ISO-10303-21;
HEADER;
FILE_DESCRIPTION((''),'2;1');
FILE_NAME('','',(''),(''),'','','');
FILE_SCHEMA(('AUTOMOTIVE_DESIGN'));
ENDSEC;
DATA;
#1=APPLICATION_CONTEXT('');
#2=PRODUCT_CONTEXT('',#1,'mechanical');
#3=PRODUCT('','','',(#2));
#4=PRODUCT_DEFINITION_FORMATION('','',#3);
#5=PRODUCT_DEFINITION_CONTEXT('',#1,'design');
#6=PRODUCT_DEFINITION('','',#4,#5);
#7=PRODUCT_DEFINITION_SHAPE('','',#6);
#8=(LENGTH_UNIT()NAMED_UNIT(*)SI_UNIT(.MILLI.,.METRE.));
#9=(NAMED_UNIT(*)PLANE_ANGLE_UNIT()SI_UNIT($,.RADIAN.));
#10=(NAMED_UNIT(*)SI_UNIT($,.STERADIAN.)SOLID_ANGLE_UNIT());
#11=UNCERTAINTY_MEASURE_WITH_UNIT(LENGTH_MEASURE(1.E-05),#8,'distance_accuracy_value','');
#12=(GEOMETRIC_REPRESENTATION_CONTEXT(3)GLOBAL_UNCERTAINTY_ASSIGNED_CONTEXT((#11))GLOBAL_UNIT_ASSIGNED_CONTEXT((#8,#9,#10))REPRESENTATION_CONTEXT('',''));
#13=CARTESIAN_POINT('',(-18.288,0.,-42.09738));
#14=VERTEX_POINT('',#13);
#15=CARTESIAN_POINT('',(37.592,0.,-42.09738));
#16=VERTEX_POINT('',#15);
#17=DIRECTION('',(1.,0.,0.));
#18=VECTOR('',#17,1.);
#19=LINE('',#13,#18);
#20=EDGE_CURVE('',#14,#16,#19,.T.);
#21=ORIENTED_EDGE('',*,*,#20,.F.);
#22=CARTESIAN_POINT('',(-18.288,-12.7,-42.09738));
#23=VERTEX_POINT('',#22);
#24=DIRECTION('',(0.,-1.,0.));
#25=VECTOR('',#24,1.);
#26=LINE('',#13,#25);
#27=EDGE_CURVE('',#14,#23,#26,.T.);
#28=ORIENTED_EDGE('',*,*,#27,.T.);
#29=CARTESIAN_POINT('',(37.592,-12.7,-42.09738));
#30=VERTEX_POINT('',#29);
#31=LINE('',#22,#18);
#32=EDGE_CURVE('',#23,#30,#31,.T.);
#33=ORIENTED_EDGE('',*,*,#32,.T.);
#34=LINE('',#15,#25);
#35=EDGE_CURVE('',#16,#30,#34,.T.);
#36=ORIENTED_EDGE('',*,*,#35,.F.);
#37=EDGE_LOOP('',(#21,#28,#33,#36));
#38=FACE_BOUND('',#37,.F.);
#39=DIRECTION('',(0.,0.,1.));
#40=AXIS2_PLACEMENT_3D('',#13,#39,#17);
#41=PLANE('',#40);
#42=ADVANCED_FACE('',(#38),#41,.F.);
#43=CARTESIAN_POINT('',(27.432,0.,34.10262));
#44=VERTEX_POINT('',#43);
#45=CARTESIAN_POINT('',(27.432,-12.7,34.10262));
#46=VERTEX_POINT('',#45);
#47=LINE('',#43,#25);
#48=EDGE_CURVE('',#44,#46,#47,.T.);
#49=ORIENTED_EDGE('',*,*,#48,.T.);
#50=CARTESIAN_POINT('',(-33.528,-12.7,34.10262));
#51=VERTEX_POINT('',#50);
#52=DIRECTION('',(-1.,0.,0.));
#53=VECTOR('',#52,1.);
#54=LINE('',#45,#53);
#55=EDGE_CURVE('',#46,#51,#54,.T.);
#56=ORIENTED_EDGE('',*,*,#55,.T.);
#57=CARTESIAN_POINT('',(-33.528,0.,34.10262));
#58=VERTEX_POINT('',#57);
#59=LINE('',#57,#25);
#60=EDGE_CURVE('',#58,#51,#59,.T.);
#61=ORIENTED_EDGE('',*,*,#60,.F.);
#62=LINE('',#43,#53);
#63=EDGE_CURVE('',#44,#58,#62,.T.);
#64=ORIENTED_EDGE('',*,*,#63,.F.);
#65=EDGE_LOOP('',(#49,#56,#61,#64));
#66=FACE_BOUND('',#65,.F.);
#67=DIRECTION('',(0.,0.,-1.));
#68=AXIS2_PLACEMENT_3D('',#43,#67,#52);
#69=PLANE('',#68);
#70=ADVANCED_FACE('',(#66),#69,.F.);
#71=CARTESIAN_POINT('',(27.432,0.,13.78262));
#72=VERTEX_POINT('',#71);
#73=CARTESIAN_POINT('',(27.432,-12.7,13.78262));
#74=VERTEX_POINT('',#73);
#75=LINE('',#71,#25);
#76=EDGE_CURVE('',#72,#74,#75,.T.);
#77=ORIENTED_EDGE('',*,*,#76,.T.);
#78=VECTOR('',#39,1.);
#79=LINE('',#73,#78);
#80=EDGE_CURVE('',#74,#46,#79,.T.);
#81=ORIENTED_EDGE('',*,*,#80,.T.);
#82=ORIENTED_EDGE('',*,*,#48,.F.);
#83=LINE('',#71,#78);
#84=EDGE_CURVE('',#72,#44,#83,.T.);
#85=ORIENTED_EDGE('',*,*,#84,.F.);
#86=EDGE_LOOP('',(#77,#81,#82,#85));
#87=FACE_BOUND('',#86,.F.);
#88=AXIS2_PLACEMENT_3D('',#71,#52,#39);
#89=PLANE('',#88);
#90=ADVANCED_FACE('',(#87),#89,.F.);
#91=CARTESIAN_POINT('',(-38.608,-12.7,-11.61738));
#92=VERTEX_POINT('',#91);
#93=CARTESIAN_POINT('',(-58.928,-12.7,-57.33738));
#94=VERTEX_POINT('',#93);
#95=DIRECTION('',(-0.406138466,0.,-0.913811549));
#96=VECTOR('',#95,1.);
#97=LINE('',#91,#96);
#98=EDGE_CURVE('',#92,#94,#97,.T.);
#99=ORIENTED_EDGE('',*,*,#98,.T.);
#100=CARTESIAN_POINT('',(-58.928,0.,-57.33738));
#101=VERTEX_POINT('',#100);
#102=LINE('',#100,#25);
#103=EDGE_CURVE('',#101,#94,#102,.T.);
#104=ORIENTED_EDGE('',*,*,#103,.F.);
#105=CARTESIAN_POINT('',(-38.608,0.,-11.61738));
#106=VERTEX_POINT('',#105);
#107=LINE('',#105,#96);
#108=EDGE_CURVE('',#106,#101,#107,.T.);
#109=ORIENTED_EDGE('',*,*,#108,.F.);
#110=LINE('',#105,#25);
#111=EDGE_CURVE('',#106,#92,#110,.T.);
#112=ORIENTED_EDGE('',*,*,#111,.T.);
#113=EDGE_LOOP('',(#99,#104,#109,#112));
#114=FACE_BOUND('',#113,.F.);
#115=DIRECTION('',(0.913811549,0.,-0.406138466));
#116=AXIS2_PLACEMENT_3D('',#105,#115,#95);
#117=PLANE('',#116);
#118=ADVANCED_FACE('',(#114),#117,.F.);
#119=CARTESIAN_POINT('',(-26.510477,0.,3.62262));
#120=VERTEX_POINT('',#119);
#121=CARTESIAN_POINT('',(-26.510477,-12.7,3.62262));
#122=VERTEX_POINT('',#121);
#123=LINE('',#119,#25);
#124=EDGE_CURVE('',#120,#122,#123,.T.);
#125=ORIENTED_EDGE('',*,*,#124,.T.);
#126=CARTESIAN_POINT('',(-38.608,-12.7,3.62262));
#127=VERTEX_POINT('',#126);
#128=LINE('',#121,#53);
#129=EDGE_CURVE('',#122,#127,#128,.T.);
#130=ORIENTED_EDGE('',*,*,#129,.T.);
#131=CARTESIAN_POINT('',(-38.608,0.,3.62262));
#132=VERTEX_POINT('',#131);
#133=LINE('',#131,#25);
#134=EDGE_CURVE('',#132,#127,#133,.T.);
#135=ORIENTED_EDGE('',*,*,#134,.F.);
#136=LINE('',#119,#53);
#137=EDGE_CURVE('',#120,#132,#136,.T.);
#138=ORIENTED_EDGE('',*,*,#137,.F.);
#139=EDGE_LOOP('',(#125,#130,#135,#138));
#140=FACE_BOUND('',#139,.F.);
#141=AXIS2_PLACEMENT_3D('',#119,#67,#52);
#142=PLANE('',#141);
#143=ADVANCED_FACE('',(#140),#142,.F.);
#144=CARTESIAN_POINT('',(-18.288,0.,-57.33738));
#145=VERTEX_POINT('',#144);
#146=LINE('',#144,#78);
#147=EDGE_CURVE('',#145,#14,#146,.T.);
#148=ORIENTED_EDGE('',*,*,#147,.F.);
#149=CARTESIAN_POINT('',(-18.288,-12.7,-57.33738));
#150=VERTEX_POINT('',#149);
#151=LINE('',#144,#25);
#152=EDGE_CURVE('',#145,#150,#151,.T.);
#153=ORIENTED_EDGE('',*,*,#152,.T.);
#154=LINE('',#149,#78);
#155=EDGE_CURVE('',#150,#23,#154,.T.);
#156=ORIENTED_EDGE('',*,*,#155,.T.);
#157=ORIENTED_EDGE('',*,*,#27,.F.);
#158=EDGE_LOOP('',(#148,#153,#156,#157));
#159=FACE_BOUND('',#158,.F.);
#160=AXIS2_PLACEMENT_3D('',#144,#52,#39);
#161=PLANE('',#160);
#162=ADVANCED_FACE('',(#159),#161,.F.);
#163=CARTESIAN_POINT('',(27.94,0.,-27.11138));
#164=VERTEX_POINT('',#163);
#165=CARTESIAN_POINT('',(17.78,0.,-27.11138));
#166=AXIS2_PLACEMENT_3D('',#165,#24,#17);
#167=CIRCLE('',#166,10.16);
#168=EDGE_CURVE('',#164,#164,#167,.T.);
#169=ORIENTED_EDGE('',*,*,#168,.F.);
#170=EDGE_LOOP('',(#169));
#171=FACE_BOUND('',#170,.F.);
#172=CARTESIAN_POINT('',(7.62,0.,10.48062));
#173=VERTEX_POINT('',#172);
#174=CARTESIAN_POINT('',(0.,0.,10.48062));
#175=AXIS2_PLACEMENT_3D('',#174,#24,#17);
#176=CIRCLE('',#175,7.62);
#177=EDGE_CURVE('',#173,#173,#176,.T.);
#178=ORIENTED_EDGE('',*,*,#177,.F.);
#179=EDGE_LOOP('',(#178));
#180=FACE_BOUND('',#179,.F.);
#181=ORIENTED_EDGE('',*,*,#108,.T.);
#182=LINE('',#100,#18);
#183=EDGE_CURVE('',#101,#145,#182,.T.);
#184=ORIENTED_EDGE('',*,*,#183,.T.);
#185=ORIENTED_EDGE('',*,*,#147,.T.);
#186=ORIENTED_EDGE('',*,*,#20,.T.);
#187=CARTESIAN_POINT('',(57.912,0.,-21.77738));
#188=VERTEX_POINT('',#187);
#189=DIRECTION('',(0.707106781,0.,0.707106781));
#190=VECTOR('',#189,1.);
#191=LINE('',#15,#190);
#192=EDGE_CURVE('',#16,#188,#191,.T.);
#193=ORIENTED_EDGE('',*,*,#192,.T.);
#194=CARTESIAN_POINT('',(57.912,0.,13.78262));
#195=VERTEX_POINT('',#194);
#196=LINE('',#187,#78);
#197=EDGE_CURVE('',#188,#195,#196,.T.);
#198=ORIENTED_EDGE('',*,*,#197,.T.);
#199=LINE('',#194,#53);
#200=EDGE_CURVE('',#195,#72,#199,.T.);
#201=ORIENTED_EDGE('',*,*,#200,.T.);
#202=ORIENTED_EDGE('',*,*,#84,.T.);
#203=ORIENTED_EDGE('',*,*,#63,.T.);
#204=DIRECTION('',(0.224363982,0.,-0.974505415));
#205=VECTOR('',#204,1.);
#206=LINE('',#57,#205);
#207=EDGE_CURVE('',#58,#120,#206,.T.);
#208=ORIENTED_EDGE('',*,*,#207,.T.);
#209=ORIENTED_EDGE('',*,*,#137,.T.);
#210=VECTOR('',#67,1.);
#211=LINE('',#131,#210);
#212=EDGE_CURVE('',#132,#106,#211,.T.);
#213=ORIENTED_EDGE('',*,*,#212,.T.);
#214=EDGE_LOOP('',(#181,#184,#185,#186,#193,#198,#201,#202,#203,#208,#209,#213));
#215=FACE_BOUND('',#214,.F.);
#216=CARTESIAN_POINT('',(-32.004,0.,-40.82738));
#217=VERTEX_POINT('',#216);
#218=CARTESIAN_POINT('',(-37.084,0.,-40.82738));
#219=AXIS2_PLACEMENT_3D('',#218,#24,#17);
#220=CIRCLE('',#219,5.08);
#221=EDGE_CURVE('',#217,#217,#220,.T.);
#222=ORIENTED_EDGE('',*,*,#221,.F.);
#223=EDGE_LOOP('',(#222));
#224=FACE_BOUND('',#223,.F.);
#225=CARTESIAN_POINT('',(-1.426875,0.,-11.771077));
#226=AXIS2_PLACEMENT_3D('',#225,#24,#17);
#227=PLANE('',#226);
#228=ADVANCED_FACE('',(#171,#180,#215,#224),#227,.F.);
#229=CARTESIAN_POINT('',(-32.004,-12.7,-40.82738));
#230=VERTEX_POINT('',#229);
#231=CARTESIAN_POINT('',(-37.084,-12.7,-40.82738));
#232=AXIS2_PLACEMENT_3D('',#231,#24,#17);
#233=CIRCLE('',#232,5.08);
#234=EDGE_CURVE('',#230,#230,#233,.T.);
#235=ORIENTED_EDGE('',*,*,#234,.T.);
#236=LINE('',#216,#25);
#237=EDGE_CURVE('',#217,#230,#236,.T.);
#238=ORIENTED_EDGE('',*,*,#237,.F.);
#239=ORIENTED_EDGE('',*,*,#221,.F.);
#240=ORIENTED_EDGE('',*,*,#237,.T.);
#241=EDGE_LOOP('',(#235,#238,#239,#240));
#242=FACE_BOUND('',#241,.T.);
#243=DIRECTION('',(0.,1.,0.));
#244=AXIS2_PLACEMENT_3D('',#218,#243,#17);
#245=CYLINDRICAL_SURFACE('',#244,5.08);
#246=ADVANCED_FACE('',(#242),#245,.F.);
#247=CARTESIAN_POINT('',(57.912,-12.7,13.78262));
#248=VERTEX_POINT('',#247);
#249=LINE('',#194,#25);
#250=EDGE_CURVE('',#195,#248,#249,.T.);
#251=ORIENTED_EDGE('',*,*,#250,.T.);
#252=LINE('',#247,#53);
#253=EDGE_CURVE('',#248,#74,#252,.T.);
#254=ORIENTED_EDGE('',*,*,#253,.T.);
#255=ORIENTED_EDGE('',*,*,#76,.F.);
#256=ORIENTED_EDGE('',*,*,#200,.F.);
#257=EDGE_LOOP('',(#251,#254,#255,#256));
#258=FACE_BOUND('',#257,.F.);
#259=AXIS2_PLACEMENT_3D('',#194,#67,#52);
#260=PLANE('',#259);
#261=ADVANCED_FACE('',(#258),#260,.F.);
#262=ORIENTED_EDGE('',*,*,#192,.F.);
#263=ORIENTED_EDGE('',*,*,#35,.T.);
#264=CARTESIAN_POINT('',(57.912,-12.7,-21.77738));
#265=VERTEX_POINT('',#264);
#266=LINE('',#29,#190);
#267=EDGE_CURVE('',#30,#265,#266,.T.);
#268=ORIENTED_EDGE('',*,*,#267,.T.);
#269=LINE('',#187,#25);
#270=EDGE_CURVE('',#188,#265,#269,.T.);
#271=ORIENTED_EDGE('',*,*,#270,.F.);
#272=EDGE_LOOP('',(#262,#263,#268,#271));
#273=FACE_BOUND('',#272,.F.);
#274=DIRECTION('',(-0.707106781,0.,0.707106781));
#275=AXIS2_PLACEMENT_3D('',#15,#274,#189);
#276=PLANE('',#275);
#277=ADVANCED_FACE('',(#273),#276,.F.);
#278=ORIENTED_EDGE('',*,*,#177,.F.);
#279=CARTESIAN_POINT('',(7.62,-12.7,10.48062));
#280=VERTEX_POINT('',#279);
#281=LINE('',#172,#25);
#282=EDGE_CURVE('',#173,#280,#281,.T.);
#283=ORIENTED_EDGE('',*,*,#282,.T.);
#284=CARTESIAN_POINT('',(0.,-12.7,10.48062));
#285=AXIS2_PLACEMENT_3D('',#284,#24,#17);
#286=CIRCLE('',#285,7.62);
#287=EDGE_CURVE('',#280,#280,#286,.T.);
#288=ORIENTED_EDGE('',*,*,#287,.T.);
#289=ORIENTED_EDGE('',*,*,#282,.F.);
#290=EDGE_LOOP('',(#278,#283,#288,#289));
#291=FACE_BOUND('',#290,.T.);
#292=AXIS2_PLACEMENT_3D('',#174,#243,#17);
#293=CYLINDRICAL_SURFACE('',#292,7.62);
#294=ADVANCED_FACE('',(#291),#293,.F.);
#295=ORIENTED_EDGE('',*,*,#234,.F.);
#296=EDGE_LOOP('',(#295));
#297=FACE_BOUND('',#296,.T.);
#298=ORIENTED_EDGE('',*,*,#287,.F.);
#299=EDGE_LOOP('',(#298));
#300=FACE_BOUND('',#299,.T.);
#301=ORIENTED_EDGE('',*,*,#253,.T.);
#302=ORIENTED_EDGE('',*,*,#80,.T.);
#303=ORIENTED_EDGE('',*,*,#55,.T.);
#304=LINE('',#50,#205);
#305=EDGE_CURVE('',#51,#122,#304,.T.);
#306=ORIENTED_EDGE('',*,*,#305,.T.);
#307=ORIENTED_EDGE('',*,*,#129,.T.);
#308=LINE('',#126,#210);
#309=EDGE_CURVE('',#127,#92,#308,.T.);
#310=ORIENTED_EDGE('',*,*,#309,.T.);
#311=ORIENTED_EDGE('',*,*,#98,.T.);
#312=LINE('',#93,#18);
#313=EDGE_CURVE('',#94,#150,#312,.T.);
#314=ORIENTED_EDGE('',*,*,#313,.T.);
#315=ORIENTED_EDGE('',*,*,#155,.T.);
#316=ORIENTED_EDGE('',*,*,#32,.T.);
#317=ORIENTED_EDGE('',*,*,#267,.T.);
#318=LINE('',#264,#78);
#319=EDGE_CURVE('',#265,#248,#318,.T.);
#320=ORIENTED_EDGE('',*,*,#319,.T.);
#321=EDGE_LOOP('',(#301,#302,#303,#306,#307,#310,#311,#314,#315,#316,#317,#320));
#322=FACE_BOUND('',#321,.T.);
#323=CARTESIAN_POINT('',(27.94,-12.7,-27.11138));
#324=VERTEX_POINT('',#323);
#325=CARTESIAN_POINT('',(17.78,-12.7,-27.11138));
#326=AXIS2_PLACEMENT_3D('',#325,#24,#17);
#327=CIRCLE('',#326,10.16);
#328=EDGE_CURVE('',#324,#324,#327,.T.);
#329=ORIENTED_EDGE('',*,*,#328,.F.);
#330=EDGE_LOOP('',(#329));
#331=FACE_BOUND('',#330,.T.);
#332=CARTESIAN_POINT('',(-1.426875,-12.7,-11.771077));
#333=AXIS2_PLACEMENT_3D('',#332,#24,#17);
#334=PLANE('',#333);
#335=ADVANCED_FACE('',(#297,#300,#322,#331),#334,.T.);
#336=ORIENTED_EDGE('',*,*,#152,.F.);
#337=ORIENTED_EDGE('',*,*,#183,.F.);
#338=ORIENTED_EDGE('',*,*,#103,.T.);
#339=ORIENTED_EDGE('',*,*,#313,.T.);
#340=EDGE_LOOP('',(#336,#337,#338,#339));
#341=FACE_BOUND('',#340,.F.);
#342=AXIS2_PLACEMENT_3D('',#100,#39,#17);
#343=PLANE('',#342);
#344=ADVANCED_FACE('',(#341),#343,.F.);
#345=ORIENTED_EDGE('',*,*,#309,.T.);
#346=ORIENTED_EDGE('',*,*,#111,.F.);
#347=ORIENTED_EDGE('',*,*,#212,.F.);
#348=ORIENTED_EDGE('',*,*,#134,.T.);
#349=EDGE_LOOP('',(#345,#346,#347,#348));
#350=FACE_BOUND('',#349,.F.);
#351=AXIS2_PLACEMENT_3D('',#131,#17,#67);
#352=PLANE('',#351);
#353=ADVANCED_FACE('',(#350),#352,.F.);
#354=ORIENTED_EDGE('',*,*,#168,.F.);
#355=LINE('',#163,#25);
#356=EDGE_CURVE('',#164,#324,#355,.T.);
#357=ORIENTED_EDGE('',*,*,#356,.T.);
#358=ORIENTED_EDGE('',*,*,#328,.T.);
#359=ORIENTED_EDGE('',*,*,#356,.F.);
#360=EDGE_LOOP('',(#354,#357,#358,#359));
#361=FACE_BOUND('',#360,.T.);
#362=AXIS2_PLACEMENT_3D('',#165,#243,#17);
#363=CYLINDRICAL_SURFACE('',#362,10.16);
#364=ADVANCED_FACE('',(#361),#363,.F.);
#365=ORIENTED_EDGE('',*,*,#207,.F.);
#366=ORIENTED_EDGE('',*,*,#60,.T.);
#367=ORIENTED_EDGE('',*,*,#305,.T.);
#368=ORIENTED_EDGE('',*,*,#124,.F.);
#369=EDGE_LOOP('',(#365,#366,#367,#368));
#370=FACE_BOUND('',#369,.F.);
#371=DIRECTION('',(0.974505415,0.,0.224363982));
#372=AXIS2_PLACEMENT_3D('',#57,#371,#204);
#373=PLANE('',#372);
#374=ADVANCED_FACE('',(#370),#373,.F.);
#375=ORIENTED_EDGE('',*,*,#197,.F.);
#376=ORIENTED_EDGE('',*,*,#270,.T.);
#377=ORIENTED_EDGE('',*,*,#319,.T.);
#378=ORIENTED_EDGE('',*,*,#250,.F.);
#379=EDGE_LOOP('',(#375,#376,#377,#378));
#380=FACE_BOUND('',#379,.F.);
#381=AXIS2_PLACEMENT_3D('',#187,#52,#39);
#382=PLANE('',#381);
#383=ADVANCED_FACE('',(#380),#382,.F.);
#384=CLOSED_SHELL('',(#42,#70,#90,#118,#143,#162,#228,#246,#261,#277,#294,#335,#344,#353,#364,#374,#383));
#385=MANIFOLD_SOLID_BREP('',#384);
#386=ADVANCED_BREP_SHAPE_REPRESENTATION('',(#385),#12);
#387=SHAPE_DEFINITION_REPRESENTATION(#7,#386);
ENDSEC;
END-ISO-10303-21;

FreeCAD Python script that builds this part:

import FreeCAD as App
import Part
import Sketcher
Q = App.Units.Quantity

doc = App.newDocument("Part")
params = doc.addObject("Spreadsheet::Sheet", "Params")
for row, (alias, value) in enumerate([
    ("sketch1_diameter", "0.4 in"),
    ("sketch1_diameter2", "0.8 in"),
    ("sketch1_diameter3", "0.6 in"),
    ("sketch1_width", "2.4 in"),
    ("sketch1_width2", "1.6 in"),
    ("pad1_length", "0.5 in"),
], start=1):
    params.set(f"A{row}", alias)
    params.set(f"B{row}", "=" + value)
    params.setAlias(f"B{row}", alias)

body = doc.addObject("PartDesign::Body", "Body")

sketch1 = body.newObject("Sketcher::SketchObject", "Sketch")
sketch1.AttachmentSupport = (doc.getObject("XZ_Plane"), [""])
sketch1.MapMode = "FlatFace"
sketch1.addGeometry(Part.LineSegment(App.Vector(27.432, 34.10262, 0), App.Vector(-33.528, 34.10262, 0)), False)
sketch1.addGeometry(Part.LineSegment(App.Vector(-33.528, 34.10262, 0), App.Vector(-26.510477, 3.62262, 0)), False)
sketch1.addGeometry(Part.LineSegment(App.Vector(-26.510477, 3.62262, 0), App.Vector(-38.608, 3.62262, 0)), False)
sketch1.addGeometry(Part.LineSegment(App.Vector(-38.608, 3.62262, 0), App.Vector(-38.608, -11.61738, 0)), False)
sketch1.addGeometry(Part.LineSegment(App.Vector(-38.608, -11.61738, 0), App.Vector(-58.928, -57.33738, 0)), False)
sketch1.addGeometry(Part.LineSegment(App.Vector(-58.928, -57.33738, 0), App.Vector(-18.288, -57.33738, 0)), False)
sketch1.addGeometry(Part.LineSegment(App.Vector(-18.288, -57.33738, 0), App.Vector(-18.288, -42.09738, 0)), False)
sketch1.addGeometry(Part.LineSegment(App.Vector(-18.288, -42.09738, 0), App.Vector(37.592, -42.09738, 0)), False)
sketch1.addGeometry(Part.LineSegment(App.Vector(37.592, -42.09738, 0), App.Vector(57.912, -21.77738, 0)), False)
sketch1.addGeometry(Part.LineSegment(App.Vector(57.912, -21.77738, 0), App.Vector(57.912, 13.78262, 0)), False)
sketch1.addGeometry(Part.LineSegment(App.Vector(57.912, 13.78262, 0), App.Vector(27.432, 13.78262, 0)), False)
sketch1.addGeometry(Part.LineSegment(App.Vector(27.432, 13.78262, 0), App.Vector(27.432, 34.10262, 0)), False)
sketch1.addGeometry(Part.Circle(App.Vector(-37.084, -40.82738, 0), App.Vector(0, 0, 1), 5.08), False)
sketch1.addGeometry(Part.Circle(App.Vector(17.78, -27.11138, 0), App.Vector(0, 0, 1), 10.16), False)
sketch1.addGeometry(Part.Circle(App.Vector(0, 10.48062, 0), App.Vector(0, 0, 1), 7.62), False)
sketch1.addConstraint(Sketcher.Constraint("Coincident", 0, 2, 1, 1))
sketch1.addConstraint(Sketcher.Constraint("Coincident", 1, 2, 2, 1))
sketch1.addConstraint(Sketcher.Constraint("Coincident", 2, 2, 3, 1))
sketch1.addConstraint(Sketcher.Constraint("Coincident", 3, 2, 4, 1))
sketch1.addConstraint(Sketcher.Constraint("Coincident", 4, 2, 5, 1))
sketch1.addConstraint(Sketcher.Constraint("Coincident", 5, 2, 6, 1))
sketch1.addConstraint(Sketcher.Constraint("Coincident", 6, 2, 7, 1))
sketch1.addConstraint(Sketcher.Constraint("Coincident", 7, 2, 8, 1))
sketch1.addConstraint(Sketcher.Constraint("Coincident", 8, 2, 9, 1))
sketch1.addConstraint(Sketcher.Constraint("Coincident", 9, 2, 10, 1))
sketch1.addConstraint(Sketcher.Constraint("Coincident", 10, 2, 11, 1))
sketch1.addConstraint(Sketcher.Constraint("Coincident", 11, 2, 0, 1))
sketch1.addConstraint(Sketcher.Constraint("Horizontal", 0))
sketch1.addConstraint(Sketcher.Constraint("Horizontal", 2))
sketch1.addConstraint(Sketcher.Constraint("Vertical", 3))
sketch1.addConstraint(Sketcher.Constraint("Horizontal", 5))
sketch1.addConstraint(Sketcher.Constraint("Vertical", 6))
sketch1.addConstraint(Sketcher.Constraint("Horizontal", 7))
sketch1.addConstraint(Sketcher.Constraint("Vertical", 9))
sketch1.addConstraint(Sketcher.Constraint("Horizontal", 10))
sketch1.addConstraint(Sketcher.Constraint("Vertical", 11))
sketch1.addConstraint(Sketcher.Constraint("PointOnObject", 14, 3, -2))
sketch1.addConstraint(Sketcher.Constraint("Equal", 3, 6))
sketch1.addConstraint(Sketcher.Constraint("Diameter", 12, Q("0.4 in")))
sketch1.addConstraint(Sketcher.Constraint("Diameter", 13, Q("0.8 in")))
sketch1.addConstraint(Sketcher.Constraint("Diameter", 14, Q("0.6 in")))
sketch1.addConstraint(Sketcher.Constraint("DistanceX", 0, 2, 0, 1, Q("2.4 in")))
sketch1.addConstraint(Sketcher.Constraint("DistanceX", 5, 1, 5, 2, Q("1.6 in")))
sketch1.addConstraint(Sketcher.Constraint("DistanceX", 7, 1, 7, 2, Q("2.2 in")))
sketch1.addConstraint(Sketcher.Constraint("DistanceX", 10, 2, 10, 1, Q("1.2 in")))
sketch1.addConstraint(Sketcher.Constraint("DistanceY", 3, 2, 3, 1, Q("0.6 in")))
sketch1.addConstraint(Sketcher.Constraint("DistanceY", 9, 1, 9, 2, Q("1.4 in")))
sketch1.addConstraint(Sketcher.Constraint("DistanceY", 11, 1, 11, 2, Q("0.8 in")))
sketch1.addConstraint(Sketcher.Constraint("Angle", 8, Q("45 deg")))
sketch1.addConstraint(Sketcher.Constraint("DistanceX", 6, 2, 8, 2, Q("3 in")))
sketch1.addConstraint(Sketcher.Constraint("DistanceX", -1, 1, 13, 3, Q("0.7 in")))
sketch1.addConstraint(Sketcher.Constraint("DistanceY", 1, 2, 0, 2, Q("1.2 in")))
sketch1.addConstraint(Sketcher.Constraint("DistanceX", 2, 2, 0, 2, Q("0.2 in")))
sketch1.addConstraint(Sketcher.Constraint("DistanceX", 12, 3, -1, 1, Q("1.46 in")))
sketch1.addConstraint(Sketcher.Constraint("DistanceX", 0, 2, -1, 1, Q("1.32 in")))
sketch1.addConstraint(Sketcher.Constraint("DistanceY", 12, 3, 13, 3, Q("0.54 in")))
sketch1.addConstraint(Sketcher.Constraint("DistanceY", 13, 3, 14, 3, Q("1.48 in")))
sketch1.addConstraint(Sketcher.Constraint("DistanceY", 14, 3, 0, 2, Q("0.93 in")))
sketch1.addConstraint(Sketcher.Constraint("DistanceX", 2, 2, 2, 1, 12.097523))
sketch1.addConstraint(Sketcher.Constraint("DistanceY", 12, 3, -1, 1, 40.82738))
sketch1.setExpression("Constraints[23]", "Params.sketch1_diameter")
sketch1.setExpression("Constraints[24]", "Params.sketch1_diameter2")
sketch1.setExpression("Constraints[25]", "Params.sketch1_diameter3")
sketch1.setExpression("Constraints[26]", "Params.sketch1_width")
sketch1.setExpression("Constraints[27]", "Params.sketch1_width2")
pad1 = body.newObject("PartDesign::Pad", "Pad")
pad1.Profile = sketch1
pad1.setExpression("Length", "Params.pad1_length")

doc.recompute()
